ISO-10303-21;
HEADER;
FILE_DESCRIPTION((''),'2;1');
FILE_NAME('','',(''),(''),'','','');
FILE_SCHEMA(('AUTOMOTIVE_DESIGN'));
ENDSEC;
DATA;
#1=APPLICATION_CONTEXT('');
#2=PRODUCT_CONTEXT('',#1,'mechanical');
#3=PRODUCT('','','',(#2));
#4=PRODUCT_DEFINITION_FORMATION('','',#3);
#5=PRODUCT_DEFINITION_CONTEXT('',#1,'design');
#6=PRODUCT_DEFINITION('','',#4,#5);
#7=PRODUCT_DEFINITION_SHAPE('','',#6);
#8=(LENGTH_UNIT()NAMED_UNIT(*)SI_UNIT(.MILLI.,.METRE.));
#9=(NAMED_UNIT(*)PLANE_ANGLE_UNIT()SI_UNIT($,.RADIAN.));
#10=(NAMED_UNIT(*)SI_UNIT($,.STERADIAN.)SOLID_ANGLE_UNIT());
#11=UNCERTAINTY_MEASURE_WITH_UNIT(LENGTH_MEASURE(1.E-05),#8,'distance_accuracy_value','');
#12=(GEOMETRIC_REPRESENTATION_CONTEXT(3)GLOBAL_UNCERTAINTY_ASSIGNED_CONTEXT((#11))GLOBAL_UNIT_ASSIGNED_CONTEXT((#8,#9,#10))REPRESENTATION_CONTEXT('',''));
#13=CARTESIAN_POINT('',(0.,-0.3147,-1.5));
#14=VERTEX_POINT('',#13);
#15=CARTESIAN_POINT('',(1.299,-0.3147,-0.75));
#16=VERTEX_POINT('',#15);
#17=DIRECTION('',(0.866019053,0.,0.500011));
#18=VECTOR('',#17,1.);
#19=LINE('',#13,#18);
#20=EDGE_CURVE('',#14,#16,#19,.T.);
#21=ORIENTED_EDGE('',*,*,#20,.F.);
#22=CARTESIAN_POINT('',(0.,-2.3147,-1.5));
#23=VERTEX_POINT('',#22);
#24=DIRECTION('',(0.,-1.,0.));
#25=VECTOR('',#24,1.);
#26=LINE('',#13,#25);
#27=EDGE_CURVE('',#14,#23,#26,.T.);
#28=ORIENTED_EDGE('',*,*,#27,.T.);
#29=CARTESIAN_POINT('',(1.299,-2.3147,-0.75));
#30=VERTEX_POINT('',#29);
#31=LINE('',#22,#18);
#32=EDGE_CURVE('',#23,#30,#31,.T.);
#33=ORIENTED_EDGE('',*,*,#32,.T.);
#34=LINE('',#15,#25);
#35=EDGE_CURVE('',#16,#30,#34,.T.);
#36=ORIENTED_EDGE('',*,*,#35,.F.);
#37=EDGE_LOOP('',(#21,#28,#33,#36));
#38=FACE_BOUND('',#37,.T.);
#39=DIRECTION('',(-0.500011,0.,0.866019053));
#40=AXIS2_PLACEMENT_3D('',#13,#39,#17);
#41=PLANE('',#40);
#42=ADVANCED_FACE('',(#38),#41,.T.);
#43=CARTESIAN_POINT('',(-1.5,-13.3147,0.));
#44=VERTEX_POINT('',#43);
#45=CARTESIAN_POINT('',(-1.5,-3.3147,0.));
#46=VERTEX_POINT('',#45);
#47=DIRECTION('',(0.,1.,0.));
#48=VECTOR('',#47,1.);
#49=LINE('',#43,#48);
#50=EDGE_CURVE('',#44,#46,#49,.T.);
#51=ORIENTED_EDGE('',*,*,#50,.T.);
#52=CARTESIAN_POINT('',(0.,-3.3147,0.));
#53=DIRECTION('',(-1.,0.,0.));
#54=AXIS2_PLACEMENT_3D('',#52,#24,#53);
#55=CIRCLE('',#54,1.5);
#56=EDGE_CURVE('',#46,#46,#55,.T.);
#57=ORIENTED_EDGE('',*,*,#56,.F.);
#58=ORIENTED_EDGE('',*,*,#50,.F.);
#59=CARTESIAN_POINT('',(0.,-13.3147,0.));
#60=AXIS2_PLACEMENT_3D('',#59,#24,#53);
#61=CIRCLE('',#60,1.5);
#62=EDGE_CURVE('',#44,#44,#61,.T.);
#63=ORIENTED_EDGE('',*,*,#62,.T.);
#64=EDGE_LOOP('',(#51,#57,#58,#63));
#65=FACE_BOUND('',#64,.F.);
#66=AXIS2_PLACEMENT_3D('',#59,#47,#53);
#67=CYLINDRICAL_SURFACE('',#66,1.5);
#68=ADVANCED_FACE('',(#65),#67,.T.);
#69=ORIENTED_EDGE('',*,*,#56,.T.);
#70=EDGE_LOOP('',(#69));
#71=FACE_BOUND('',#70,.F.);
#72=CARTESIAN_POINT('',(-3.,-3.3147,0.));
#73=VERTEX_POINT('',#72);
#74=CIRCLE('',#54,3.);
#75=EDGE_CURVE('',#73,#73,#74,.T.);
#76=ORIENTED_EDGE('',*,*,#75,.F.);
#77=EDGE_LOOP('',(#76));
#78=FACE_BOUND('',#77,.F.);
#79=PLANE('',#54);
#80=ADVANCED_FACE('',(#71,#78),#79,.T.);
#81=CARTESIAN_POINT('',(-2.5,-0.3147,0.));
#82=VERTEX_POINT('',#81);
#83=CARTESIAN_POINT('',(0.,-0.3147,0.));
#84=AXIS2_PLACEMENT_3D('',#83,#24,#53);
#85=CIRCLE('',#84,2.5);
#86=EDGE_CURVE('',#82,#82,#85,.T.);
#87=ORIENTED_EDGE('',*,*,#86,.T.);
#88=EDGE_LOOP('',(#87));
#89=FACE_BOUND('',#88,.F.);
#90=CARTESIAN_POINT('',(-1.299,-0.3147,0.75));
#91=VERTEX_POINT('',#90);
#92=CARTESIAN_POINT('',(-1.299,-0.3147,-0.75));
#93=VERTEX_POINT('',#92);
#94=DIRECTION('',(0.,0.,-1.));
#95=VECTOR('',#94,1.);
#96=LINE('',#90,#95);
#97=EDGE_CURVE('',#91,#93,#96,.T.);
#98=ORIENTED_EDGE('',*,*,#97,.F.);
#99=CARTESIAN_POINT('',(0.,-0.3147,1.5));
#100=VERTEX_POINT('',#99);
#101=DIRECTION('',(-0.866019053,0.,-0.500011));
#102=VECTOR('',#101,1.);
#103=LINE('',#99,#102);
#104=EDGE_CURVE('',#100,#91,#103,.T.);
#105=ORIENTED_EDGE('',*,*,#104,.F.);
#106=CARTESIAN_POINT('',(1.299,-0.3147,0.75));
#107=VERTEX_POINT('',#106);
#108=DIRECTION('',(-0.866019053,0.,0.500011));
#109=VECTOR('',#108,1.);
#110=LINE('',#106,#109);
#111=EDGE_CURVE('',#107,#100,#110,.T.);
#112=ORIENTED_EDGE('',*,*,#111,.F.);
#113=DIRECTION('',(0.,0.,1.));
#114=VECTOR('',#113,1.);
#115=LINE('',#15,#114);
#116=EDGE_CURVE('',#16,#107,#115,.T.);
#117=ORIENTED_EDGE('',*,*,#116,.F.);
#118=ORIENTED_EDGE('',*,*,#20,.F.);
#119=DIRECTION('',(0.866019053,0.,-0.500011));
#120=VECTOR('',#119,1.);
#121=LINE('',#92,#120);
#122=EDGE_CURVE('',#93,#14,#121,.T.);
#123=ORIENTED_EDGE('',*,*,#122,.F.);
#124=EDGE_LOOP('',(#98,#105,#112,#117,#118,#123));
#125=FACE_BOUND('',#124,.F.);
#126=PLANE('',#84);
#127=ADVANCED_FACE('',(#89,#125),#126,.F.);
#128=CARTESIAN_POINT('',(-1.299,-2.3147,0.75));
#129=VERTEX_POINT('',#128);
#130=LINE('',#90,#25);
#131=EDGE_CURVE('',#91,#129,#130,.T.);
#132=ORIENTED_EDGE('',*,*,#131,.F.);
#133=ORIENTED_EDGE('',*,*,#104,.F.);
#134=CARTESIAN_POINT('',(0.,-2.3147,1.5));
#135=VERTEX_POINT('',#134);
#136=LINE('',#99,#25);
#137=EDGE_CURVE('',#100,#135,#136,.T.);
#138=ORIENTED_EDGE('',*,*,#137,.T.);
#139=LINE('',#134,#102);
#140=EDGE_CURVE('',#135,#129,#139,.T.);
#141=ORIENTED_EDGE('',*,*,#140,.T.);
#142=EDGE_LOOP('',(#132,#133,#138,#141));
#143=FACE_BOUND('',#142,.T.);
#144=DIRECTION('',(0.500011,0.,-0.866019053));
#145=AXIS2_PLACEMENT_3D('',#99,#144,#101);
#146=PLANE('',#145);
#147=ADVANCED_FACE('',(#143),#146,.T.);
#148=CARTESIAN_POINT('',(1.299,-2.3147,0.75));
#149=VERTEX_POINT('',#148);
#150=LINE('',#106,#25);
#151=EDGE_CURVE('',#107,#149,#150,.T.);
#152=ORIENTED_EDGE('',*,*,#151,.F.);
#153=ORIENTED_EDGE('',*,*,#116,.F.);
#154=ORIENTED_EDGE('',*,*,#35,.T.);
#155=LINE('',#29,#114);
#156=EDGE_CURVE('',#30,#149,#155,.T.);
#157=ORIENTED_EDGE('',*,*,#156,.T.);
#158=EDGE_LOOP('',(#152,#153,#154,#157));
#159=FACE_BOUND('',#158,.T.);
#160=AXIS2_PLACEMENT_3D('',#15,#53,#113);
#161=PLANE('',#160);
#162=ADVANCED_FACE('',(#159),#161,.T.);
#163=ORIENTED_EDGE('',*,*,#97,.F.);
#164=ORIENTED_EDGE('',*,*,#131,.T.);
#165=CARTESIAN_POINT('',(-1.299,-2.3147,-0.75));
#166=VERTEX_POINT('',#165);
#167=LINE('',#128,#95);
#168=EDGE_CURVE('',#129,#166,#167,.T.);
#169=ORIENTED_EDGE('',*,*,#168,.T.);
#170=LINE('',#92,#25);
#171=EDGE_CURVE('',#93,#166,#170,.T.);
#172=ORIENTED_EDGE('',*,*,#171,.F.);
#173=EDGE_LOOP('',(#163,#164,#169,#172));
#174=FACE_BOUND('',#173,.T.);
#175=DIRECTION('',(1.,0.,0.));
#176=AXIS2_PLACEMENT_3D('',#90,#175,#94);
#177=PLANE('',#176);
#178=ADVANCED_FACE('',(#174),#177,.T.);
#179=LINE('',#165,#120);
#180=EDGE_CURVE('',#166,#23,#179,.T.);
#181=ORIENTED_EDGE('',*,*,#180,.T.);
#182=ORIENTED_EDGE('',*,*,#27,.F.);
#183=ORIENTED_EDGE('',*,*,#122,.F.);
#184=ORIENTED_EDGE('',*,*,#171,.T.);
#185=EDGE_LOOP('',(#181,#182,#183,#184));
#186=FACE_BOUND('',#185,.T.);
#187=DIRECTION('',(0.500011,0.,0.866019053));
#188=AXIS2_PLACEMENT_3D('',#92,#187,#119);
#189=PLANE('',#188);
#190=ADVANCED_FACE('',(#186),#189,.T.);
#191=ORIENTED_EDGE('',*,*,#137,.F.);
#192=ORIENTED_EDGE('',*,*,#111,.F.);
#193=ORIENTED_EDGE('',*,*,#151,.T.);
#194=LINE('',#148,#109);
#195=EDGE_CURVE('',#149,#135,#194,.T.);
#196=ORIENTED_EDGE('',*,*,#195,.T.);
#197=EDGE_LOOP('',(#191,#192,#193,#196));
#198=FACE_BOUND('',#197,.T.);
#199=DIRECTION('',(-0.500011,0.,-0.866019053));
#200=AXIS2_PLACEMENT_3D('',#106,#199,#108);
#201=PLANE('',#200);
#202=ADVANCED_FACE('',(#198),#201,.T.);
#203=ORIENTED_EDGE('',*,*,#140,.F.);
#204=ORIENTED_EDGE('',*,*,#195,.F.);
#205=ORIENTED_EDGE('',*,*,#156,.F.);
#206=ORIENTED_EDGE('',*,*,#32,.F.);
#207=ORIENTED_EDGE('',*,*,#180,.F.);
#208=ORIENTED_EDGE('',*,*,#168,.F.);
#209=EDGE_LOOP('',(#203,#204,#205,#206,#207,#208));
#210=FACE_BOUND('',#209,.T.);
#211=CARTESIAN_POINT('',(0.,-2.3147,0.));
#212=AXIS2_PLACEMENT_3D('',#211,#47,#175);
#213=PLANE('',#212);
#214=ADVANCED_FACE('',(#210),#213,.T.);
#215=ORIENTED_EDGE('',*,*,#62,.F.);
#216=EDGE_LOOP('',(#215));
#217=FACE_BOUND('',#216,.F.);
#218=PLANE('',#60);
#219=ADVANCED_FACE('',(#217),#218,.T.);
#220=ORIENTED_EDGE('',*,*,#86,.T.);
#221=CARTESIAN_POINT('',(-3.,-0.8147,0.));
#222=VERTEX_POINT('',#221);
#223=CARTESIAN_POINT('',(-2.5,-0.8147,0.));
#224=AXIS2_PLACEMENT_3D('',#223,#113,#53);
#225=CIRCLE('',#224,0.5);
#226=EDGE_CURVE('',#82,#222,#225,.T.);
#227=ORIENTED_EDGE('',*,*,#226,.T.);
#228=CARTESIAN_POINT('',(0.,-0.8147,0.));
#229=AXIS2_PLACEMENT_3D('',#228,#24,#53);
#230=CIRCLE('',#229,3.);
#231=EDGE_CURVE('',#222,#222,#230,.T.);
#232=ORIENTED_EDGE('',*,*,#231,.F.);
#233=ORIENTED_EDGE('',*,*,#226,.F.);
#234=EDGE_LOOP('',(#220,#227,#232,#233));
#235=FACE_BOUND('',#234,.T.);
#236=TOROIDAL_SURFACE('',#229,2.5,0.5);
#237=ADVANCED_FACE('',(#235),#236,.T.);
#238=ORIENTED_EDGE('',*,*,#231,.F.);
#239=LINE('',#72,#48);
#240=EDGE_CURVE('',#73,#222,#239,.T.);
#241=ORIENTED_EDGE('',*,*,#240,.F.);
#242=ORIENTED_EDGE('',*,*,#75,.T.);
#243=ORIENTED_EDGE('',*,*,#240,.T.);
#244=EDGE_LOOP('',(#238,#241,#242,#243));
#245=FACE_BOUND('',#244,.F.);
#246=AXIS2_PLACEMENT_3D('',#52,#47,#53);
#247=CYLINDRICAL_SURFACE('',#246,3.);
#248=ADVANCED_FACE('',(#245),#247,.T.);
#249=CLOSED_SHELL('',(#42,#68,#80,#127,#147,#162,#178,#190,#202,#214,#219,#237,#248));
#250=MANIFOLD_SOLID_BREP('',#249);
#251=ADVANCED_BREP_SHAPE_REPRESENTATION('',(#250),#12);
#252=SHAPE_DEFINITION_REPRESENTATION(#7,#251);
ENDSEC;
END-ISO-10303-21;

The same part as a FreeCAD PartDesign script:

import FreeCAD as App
import Part
import Sketcher

V = App.Vector
Q = App.Units.Quantity


def edges_at(feature, points):
    """Names of the edges that pass closest to the given points."""
    edges = feature.Shape.Edges
    near = lambda p: min(range(len(edges)), key=lambda i: edges[i].distToShape(Part.Vertex(*p))[0])
    return sorted({f"Edge{near(p) + 1}" for p in points})


def add_polygon(sketch, points):
    """Adds a closed chain of lines whose ends are joined by coincident constraints."""
    first, n = sketch.GeometryCount, len(points)
    for a, b in zip(points, points[1:] + points[:1]):
        sketch.addGeometry(Part.LineSegment(App.Vector(*a, 0), App.Vector(*b, 0)), False)
    for i in range(n):
        sketch.addConstraint(Sketcher.Constraint("Coincident", first + i, 2, first + (i + 1) % n, 1))

doc = App.newDocument("Part")
body = doc.addObject("PartDesign::Body", "Body")

sketch1 = body.newObject("Sketcher::SketchObject", "Sketch")
sketch1.AttachmentSupport = (doc.getObject("XY_Plane"), [""])
sketch1.MapMode = "FlatFace"
add_polygon(sketch1, [(0, -0.3147), (-3, -0.3147), (-3, -3.3147), (-1.5, -3.3147), (-1.5, -13.3147), (0, -13.3147)])
sketch1.addConstraint([
    Sketcher.Constraint("Horizontal", 0),
    Sketcher.Constraint("Vertical", 1),
    Sketcher.Constraint("Horizontal", 2),
    Sketcher.Constraint("Vertical", 3),
    Sketcher.Constraint("Horizontal", 4),
    Sketcher.Constraint("Vertical", 5),
    Sketcher.Constraint("PointOnObject", 4, 2, -2),
    Sketcher.Constraint("Equal", 2, 4),
    Sketcher.Constraint("Equal", 0, 1),
    Sketcher.Constraint("DistanceX", 0, 2, 0, 1, Q("3 mm")),
    Sketcher.Constraint("DistanceY", 3, 2, 3, 1, Q("10 mm")),
    Sketcher.Constraint("DistanceY", 0, 2, -1, 1, Q("0.3147 mm")),
])
revolution = body.newObject("PartDesign::Revolution", "Revolution")
revolution.Profile = sketch1
revolution.ReferenceAxis = (sketch1, ["V_Axis"])
revolution.Angle = 360

sketch2 = body.newObject("Sketcher::SketchObject", "Sketch001")
sketch2.AttachmentSupport = (doc.getObject("XZ_Plane"), [""])
sketch2.MapMode = "FlatFace"
sketch2.AttachmentOffset = App.Placement(V(0, 0, 0.3147), App.Rotation())
add_polygon(sketch2, [(1.299, -0.75), (0, -1.5), (-1.299, -0.75), (-1.299, 0.75), (0, 1.5), (1.299, 0.75)])
sketch2.addConstraint([
    Sketcher.Constraint("Vertical", 2),
    Sketcher.Constraint("Vertical", 5),
    Sketcher.Constraint("Symmetric", 0, 2, 3, 2, -1, 1),
    Sketcher.Constraint("Symmetric", 1, 2, 4, 2, -1, 1),
    Sketcher.Constraint("PointOnObject", 0, 2, -2),
    Sketcher.Constraint("Parallel", 0, 3),
    Sketcher.Constraint("Horizontal", 2, 2, 4, 2),
    Sketcher.Constraint("DistanceY", 2, 1, 2, 2, Q("1.5 mm")),
    Sketcher.Constraint("Distance", 0, Q("1.5 mm")),
    Sketcher.Constraint("DistanceY", 0, 2, -1, 1, Q("1.5 mm")),
])
pocket1 = body.newObject("PartDesign::Pocket", "Pocket")
pocket1.Profile = sketch2
pocket1.Length = 2
pocket1.Reversed = True
doc.recompute()

fillet = body.newObject("PartDesign::Fillet", "Fillet")
fillet.Base = (pocket1, edges_at(pocket1, [(3, -0.315, 0)]))
fillet.Radius = 0.5

doc.recompute()
